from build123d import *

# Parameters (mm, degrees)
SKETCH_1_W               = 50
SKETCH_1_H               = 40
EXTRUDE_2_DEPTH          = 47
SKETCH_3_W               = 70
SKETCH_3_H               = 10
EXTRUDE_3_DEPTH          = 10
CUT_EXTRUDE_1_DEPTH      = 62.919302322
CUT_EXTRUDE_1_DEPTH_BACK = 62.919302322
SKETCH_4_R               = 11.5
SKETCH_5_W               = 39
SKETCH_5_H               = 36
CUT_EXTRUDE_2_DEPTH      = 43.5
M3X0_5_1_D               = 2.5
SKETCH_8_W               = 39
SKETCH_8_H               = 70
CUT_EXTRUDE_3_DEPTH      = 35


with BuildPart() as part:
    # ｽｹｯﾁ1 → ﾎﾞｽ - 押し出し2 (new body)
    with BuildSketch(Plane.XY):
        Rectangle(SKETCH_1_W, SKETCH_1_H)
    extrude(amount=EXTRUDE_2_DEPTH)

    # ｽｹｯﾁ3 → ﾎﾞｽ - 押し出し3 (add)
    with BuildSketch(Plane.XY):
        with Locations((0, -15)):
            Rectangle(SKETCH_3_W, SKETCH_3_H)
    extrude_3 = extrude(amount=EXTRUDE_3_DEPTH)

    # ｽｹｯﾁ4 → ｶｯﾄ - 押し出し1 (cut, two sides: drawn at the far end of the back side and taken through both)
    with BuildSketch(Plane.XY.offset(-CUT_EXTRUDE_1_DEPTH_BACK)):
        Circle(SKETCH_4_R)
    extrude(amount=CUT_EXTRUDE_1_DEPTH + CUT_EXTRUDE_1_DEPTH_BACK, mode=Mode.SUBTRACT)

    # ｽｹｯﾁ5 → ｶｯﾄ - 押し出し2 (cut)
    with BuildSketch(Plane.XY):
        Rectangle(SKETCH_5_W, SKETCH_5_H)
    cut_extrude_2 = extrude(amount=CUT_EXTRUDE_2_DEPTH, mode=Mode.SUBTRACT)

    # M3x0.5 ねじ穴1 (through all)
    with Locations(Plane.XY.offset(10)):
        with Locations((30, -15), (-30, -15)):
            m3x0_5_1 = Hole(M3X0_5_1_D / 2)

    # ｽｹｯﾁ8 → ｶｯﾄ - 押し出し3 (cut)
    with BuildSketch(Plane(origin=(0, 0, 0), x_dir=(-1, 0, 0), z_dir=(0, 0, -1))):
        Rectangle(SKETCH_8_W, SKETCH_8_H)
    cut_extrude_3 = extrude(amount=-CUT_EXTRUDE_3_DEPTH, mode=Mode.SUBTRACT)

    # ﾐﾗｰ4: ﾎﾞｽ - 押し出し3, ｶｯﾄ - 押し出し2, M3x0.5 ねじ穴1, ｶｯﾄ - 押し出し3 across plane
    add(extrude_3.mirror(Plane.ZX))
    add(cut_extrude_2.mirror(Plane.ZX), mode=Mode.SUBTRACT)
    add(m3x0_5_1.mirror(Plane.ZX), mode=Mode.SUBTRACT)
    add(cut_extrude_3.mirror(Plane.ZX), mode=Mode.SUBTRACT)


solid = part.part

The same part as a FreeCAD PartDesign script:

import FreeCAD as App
import Part
import Sketcher
from FreeCAD import Vector
Q = App.Units.Quantity

doc = App.newDocument("Part")
body = doc.addObject("PartDesign::Body", "Body")

# Sketch on XY plane
sketch1 = body.newObject("Sketcher::SketchObject", "Sketch")
sketch1.AttachmentSupport = (doc.getObject("XY_Plane"), [""])
sketch1.MapMode = "FlatFace"
sketch1.addGeometry(Part.LineSegment(Vector(-25, 20, 0), Vector(-25, -20, 0)), False)
sketch1.addGeometry(Part.LineSegment(Vector(-25, -20, 0), Vector(25, -20, 0)), False)
sketch1.addGeometry(Part.LineSegment(Vector(25, -20, 0), Vector(25, 20, 0)), False)
sketch1.addGeometry(Part.LineSegment(Vector(25, 20, 0), Vector(-25, 20, 0)), False)
sketch1.addConstraint(Sketcher.Constraint("Coincident", 0, 2, 1, 1))
sketch1.addConstraint(Sketcher.Constraint("Coincident", 1, 2, 2, 1))
sketch1.addConstraint(Sketcher.Constraint("Coincident", 2, 2, 3, 1))
sketch1.addConstraint(Sketcher.Constraint("Coincident", 3, 2, 0, 1))
sketch1.addConstraint(Sketcher.Constraint("Vertical", 0))
sketch1.addConstraint(Sketcher.Constraint("Horizontal", 1))
sketch1.addConstraint(Sketcher.Constraint("Vertical", 2))
sketch1.addConstraint(Sketcher.Constraint("Horizontal", 3))
sketch1.addConstraint(Sketcher.Constraint("Symmetric", 0, 2, 2, 2, -1, 1))
sketch1.addConstraint(Sketcher.Constraint("DistanceX", 1, 1, 1, 2, Q("50 mm")))
sketch1.addConstraint(Sketcher.Constraint("DistanceY", 0, 2, 0, 1, Q("40 mm")))
pad1 = body.newObject("PartDesign::Pad", "Pad")
pad1.Profile = sketch1
pad1.Length = 47

# Sketch on XY plane
sketch2 = body.newObject("Sketcher::SketchObject", "Sketch001")
sketch2.AttachmentSupport = (doc.getObject("XY_Plane"), [""])
sketch2.MapMode = "FlatFace"
sketch2.addGeometry(Part.LineSegment(Vector(-35, -10, 0), Vector(-35, -20, 0)), False)
sketch2.addGeometry(Part.LineSegment(Vector(-35, -20, 0), Vector(35, -20, 0)), False)
sketch2.addGeometry(Part.LineSegment(Vector(35, -20, 0), Vector(35, -10, 0)), False)
sketch2.addGeometry(Part.LineSegment(Vector(35, -10, 0), Vector(-35, -10, 0)), False)
sketch2.addConstraint(Sketcher.Constraint("Coincident", 0, 2, 1, 1))
sketch2.addConstraint(Sketcher.Constraint("Coincident", 1, 2, 2, 1))
sketch2.addConstraint(Sketcher.Constraint("Coincident", 2, 2, 3, 1))
sketch2.addConstraint(Sketcher.Constraint("Coincident", 3, 2, 0, 1))
sketch2.addConstraint(Sketcher.Constraint("Vertical", 0))
sketch2.addConstraint(Sketcher.Constraint("Horizontal", 1))
sketch2.addConstraint(Sketcher.Constraint("Vertical", 2))
sketch2.addConstraint(Sketcher.Constraint("Horizontal", 3))
sketch2.addConstraint(Sketcher.Constraint("DistanceX", 1, 1, 1, 2, Q("70 mm")))
sketch2.addConstraint(Sketcher.Constraint("DistanceY", 0, 2, 0, 1, Q("10 mm")))
sketch2.addConstraint(Sketcher.Constraint("DistanceX", 0, 2, -1, 1, Q("35 mm")))
sketch2.addConstraint(Sketcher.Constraint("DistanceY", 0, 2, -1, 1, Q("20 mm")))
pad2 = body.newObject("PartDesign::Pad", "Pad001")
pad2.Profile = sketch2
pad2.Length = 10

# Sketch on XY plane
sketch3 = body.newObject("Sketcher::SketchObject", "Sketch002")
sketch3.AttachmentSupport = (doc.getObject("XY_Plane"), [""])
sketch3.MapMode = "FlatFace"
sketch3.addGeometry(Part.Circle(Vector(0, 0, 0), Vector(0, 0, 1), 12), False)
sketch3.addConstraint(Sketcher.Constraint("Coincident", 0, 3, -1, 1))
sketch3.addConstraint(Sketcher.Constraint("Diameter", 0, Q("23 mm")))
pocket1 = body.newObject("PartDesign::Pocket", "Pocket")
pocket1.Profile = sketch3
pocket1.Type = "ThroughAll"
pocket1.Midplane = True

# Sketch on XY plane
sketch4 = body.newObject("Sketcher::SketchObject", "Sketch003")
sketch4.AttachmentSupport = (doc.getObject("XY_Plane"), [""])
sketch4.MapMode = "FlatFace"
sketch4.addGeometry(Part.LineSegment(Vector(-20, 18, 0), Vector(-20, -18, 0)), False)
sketch4.addGeometry(Part.LineSegment(Vector(-20, -18, 0), Vector(20, -18, 0)), False)
sketch4.addGeometry(Part.LineSegment(Vector(20, -18, 0), Vector(20, 18, 0)), False)
sketch4.addGeometry(Part.LineSegment(Vector(20, 18, 0), Vector(-20, 18, 0)), False)
sketch4.addConstraint(Sketcher.Constraint("Coincident", 0, 2, 1, 1))
sketch4.addConstraint(Sketcher.Constraint("Coincident", 1, 2, 2, 1))
sketch4.addConstraint(Sketcher.Constraint("Coincident", 2, 2, 3, 1))
sketch4.addConstraint(Sketcher.Constraint("Coincident", 3, 2, 0, 1))
sketch4.addConstraint(Sketcher.Constraint("Vertical", 0))
sketch4.addConstraint(Sketcher.Constraint("Horizontal", 1))
sketch4.addConstraint(Sketcher.Constraint("Vertical", 2))
sketch4.addConstraint(Sketcher.Constraint("Horizontal", 3))
sketch4.addConstraint(Sketcher.Constraint("Symmetric", 0, 2, 2, 2, -1, 1))
sketch4.addConstraint(Sketcher.Constraint("DistanceX", 1, 1, 1, 2, Q("39 mm")))
sketch4.addConstraint(Sketcher.Constraint("DistanceY", 0, 2, 0, 1, Q("36 mm")))
pocket2 = body.newObject("PartDesign::Pocket", "Pocket001")
pocket2.Profile = sketch4
pocket2.Length = 43.5
pocket2.Reversed = True

# Sketch on XY plane
sketch5 = body.newObject("Sketcher::SketchObject", "Sketch004")
sketch5.AttachmentSupport = (doc.getObject("XY_Plane"), [""])
sketch5.MapMode = "FlatFace"
sketch5.AttachmentOffset = App.Placement(Vector(0, 0, 10), App.Rotation())
sketch5.addGeometry(Part.Circle(Vector(30, -15, 0), Vector(0, 0, 1), 1.2), False)
sketch5.addGeometry(Part.Circle(Vector(-30, -15, 0), Vector(0, 0, 1), 1.2), False)
sketch5.addConstraint(Sketcher.Constraint("Equal", 0, 1))
sketch5.addConstraint(Sketcher.Constraint("Symmetric", 0, 3, 1, 3, -2))
sketch5.addConstraint(Sketcher.Constraint("Diameter", 0, Q("2.5 mm")))
sketch5.addConstraint(Sketcher.Constraint("DistanceX", -1, 1, 0, 3, Q("30 mm")))
sketch5.addConstraint(Sketcher.Constraint("DistanceY", 0, 3, -1, 1, Q("15 mm")))
doc.recompute()
hole = body.newObject("PartDesign::Hole", "Hole")
hole.Profile = sketch5
hole.ThreadType = "None"
hole.Diameter = 2.5
hole.DepthType = "ThroughAll"

# Sketch on XY plane
sketch6 = body.newObject("Sketcher::SketchObject", "Sketch005")
sketch6.AttachmentSupport = (doc.getObject("XY_Plane"), [""])
sketch6.MapMode = "FlatFace"
sketch6.addGeometry(Part.LineSegment(Vector(20, 35, 0), Vector(20, -35, 0)), False)
sketch6.addGeometry(Part.LineSegment(Vector(20, -35, 0), Vector(-20, -35, 0)), False)
sketch6.addGeometry(Part.LineSegment(Vector(-20, -35, 0), Vector(-20, 35, 0)), False)
sketch6.addGeometry(Part.LineSegment(Vector(-20, 35, 0), Vector(20, 35, 0)), False)
sketch6.addConstraint(Sketcher.Constraint("Coincident", 0, 2, 1, 1))
sketch6.addConstraint(Sketcher.Constraint("Coincident", 1, 2, 2, 1))
sketch6.addConstraint(Sketcher.Constraint("Coincident", 2, 2, 3, 1))
sketch6.addConstraint(Sketcher.Constraint("Coincident", 3, 2, 0, 1))
sketch6.addConstraint(Sketcher.Constraint("Vertical", 0))
sketch6.addConstraint(Sketcher.Constraint("Horizontal", 1))
sketch6.addConstraint(Sketcher.Constraint("Vertical", 2))
sketch6.addConstraint(Sketcher.Constraint("Horizontal", 3))
sketch6.addConstraint(Sketcher.Constraint("Symmetric", 0, 2, 2, 2, -1, 1))
sketch6.addConstraint(Sketcher.Constraint("DistanceX", 1, 2, 1, 1, Q("39 mm")))
sketch6.addConstraint(Sketcher.Constraint("DistanceY", 0, 2, 0, 1, Q("70 mm")))
pocket3 = body.newObject("PartDesign::Pocket", "Pocket002")
pocket3.Profile = sketch6
pocket3.Length = 35
pocket3.Reversed = True
doc.recompute()

mirrored = body.newObject("PartDesign::Mirrored", "Mirrored")
mirrored.Originals = [pad2, pocket2, hole, pocket3]
mirrored.MirrorPlane = (doc.getObject("XZ_Plane"), [""])
body.Tip = mirrored

doc.recompute()
